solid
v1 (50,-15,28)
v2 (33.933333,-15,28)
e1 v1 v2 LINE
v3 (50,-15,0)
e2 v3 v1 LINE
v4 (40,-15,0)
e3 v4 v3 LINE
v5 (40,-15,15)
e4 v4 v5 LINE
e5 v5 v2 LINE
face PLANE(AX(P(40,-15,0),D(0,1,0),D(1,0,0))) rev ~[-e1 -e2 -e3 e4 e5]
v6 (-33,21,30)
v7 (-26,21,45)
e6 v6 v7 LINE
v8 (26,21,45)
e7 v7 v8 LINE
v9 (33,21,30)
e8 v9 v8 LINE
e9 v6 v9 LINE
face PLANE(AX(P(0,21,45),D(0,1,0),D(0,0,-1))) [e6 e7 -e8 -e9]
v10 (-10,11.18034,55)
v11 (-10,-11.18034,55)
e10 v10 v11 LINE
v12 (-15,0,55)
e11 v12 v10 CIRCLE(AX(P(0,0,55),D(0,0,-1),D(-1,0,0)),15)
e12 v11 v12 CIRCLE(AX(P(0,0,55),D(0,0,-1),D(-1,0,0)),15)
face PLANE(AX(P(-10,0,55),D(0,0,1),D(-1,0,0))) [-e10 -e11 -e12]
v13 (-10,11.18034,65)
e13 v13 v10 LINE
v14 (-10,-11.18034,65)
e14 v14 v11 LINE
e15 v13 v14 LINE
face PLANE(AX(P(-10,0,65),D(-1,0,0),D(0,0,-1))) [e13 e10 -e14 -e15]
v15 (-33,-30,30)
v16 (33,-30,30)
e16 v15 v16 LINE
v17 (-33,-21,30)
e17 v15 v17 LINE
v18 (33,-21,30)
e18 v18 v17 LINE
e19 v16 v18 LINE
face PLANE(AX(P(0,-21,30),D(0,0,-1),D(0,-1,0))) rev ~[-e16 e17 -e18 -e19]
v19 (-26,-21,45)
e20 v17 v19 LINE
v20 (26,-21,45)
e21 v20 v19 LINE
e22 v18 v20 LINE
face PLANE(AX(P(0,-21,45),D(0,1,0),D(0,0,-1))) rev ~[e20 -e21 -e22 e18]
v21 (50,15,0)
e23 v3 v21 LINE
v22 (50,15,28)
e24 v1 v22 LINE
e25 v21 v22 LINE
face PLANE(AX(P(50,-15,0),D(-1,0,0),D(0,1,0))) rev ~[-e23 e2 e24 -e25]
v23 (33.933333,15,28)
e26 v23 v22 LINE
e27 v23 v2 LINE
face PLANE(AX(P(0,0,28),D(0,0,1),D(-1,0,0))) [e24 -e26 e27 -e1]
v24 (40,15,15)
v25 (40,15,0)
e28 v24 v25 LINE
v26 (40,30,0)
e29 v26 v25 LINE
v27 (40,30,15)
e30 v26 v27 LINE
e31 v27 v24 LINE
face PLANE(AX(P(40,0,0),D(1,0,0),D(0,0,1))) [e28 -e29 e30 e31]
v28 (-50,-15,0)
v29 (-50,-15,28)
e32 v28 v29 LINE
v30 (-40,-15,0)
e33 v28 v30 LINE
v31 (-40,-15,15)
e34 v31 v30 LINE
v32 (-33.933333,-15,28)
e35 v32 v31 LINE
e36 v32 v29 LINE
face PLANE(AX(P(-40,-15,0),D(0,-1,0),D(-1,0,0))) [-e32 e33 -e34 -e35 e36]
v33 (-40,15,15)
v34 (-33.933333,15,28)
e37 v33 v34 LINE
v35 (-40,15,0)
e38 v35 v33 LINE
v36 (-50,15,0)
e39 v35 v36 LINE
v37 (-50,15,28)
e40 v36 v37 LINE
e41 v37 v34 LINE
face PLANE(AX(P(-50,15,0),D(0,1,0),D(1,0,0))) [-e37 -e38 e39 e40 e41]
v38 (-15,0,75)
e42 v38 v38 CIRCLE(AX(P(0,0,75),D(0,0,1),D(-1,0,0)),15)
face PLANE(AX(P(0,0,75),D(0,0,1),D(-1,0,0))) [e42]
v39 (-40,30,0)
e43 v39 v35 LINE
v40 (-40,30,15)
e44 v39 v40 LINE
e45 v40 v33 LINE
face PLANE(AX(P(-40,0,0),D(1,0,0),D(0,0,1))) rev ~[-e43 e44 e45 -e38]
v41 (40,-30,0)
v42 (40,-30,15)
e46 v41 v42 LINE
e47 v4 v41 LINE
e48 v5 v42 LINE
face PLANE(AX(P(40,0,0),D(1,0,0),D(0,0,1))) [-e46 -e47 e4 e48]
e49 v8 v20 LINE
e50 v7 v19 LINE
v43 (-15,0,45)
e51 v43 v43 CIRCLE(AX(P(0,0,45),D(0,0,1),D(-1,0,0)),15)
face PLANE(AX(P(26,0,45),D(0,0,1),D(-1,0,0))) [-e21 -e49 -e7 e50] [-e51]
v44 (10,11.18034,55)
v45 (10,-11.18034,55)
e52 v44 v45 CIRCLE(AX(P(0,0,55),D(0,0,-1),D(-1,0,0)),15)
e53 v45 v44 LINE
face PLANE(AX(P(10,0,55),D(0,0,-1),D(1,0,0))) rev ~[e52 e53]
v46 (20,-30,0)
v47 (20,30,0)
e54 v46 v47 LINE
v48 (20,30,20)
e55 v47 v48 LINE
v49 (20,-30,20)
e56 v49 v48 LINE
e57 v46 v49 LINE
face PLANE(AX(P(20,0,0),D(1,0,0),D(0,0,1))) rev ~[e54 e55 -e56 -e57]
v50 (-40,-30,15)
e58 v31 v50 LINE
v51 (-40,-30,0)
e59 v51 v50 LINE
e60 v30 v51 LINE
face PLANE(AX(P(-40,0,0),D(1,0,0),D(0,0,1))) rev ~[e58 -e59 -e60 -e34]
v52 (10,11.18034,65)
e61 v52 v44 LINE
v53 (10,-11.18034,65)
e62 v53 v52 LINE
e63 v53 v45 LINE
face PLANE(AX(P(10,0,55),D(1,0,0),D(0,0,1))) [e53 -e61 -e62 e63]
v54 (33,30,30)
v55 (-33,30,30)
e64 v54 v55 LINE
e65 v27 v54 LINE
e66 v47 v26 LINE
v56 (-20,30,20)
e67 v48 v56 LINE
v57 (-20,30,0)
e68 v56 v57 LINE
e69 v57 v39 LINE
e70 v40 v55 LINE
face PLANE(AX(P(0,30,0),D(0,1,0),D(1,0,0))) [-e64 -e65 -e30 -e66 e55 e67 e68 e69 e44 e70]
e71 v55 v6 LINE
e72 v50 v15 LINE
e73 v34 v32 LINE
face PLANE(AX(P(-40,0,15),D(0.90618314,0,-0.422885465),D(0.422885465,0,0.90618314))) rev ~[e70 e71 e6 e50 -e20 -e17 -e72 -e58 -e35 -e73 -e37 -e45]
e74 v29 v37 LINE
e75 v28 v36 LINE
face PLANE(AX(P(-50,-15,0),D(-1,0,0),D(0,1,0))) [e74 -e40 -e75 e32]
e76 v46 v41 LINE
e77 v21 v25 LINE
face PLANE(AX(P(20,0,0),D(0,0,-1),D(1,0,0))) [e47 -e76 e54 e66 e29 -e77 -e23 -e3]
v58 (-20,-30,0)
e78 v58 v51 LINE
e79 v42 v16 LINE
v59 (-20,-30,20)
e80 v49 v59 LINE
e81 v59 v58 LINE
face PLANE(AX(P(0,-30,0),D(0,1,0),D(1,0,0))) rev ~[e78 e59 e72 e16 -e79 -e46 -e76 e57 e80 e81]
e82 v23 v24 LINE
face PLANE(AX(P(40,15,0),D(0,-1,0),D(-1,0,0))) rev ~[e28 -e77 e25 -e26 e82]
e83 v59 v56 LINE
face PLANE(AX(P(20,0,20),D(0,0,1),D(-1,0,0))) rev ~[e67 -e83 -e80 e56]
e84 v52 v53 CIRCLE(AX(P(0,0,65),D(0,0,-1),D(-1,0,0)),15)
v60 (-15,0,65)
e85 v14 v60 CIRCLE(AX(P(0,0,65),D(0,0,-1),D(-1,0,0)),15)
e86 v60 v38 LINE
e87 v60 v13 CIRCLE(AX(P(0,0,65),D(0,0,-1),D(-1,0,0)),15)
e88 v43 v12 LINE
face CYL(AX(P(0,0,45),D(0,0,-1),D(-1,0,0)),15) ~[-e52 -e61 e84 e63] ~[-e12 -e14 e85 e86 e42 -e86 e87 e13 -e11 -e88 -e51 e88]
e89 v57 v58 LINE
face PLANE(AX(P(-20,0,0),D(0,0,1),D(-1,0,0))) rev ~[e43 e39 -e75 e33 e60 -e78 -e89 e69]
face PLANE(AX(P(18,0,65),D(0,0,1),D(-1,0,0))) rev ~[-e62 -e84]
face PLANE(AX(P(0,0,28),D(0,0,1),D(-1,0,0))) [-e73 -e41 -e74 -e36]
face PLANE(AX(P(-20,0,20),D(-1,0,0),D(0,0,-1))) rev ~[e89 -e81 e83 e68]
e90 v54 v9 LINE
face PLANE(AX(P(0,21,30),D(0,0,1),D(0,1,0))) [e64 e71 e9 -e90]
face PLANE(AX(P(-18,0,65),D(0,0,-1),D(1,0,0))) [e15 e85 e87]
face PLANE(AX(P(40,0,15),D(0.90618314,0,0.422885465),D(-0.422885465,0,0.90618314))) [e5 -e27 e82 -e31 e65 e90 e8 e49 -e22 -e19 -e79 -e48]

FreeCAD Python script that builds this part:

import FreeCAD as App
import Part
import Sketcher

V = App.Vector

doc = App.newDocument("Part")
body = doc.addObject("PartDesign::Body", "Body")

sketch1 = body.newObject("Sketcher::SketchObject", "Sketch")
sketch1.AttachmentSupport = (doc.getObject("XZ_Plane"), [""])
sketch1.MapMode = "FlatFace"
sketch1.addGeometry([
    Part.LineSegment(V(40, 0, 0), V(20, 0, 0)),
    Part.LineSegment(V(20, 0, 0), V(20, 20, 0)),
    Part.LineSegment(V(20, 20, 0), V(-20, 20, 0)),
    Part.LineSegment(V(-20, 20, 0), V(-20, 0, 0)),
    Part.LineSegment(V(-20, 0, 0), V(-40, 0, 0)),
    Part.LineSegment(V(-40, 0, 0), V(-40, 15, 0)),
    Part.LineSegment(V(-40, 15, 0), V(-26, 45, 0)),
    Part.LineSegment(V(-26, 45, 0), V(26, 45, 0)),
    Part.LineSegment(V(26, 45, 0), V(40, 15, 0)),
    Part.LineSegment(V(40, 15, 0), V(40, 0, 0)),
], False)
sketch1.addConstraint([
    Sketcher.Constraint("Coincident", 0, 2, 1, 1),
    Sketcher.Constraint("Coincident", 1, 2, 2, 1),
    Sketcher.Constraint("Coincident", 2, 2, 3, 1),
    Sketcher.Constraint("Coincident", 3, 2, 4, 1),
    Sketcher.Constraint("Coincident", 4, 2, 5, 1),
    Sketcher.Constraint("Coincident", 5, 2, 6, 1),
    Sketcher.Constraint("Coincident", 6, 2, 7, 1),
    Sketcher.Constraint("Coincident", 7, 2, 8, 1),
    Sketcher.Constraint("Coincident", 8, 2, 9, 1),
    Sketcher.Constraint("Coincident", 9, 2, 0, 1),
    Sketcher.Constraint("Horizontal", 0),
    Sketcher.Constraint("Vertical", 1),
    Sketcher.Constraint("Horizontal", 2),
    Sketcher.Constraint("Vertical", 3),
    Sketcher.Constraint("Horizontal", 4),
    Sketcher.Constraint("Vertical", 5),
    Sketcher.Constraint("Horizontal", 7),
    Sketcher.Constraint("Vertical", 9),
    Sketcher.Constraint("Symmetric", 0, 2, 3, 2, -1, 1),
    Sketcher.Constraint("Symmetric", 5, 2, 8, 2, -2),
    Sketcher.Constraint("PointOnObject", 0, 2, -1),
    Sketcher.Constraint("Equal", 4, 1),
    Sketcher.Constraint("Equal", 6, 8),
    Sketcher.Constraint("DistanceY", 5, 1, 5, 2, 15.0),
    Sketcher.Constraint("DistanceX", 6, 2, -1, 1, 26.0),
    Sketcher.Constraint("DistanceX", 0, 2, 0, 1, 20.0),
    Sketcher.Constraint("DistanceX", 2, 2, 2, 1, 40.0),
    Sketcher.Constraint("DistanceY", -1, 1, 6, 2, 45.0),
])
pad1 = body.newObject("PartDesign::Pad", "Pad")
pad1.Profile = sketch1
pad1.Length = 60
pad1.Midplane = True

sketch2 = body.newObject("Sketcher::SketchObject", "Sketch001")
sketch2.AttachmentSupport = (doc.getObject("YZ_Plane"), [""])
sketch2.MapMode = "FlatFace"
sketch2.addGeometry([
    Part.LineSegment(V(-21, 45, 0), V(-30, 45, 0)),
    Part.LineSegment(V(-30, 45, 0), V(-30, 30, 0)),
    Part.LineSegment(V(-30, 30, 0), V(-21, 30, 0)),
    Part.LineSegment(V(-21, 30, 0), V(-21, 45, 0)),
    Part.LineSegment(V(30, 45, 0), V(21, 45, 0)),
    Part.LineSegment(V(21, 45, 0), V(21, 30, 0)),
    Part.LineSegment(V(21, 30, 0), V(30, 30, 0)),
    Part.LineSegment(V(30, 30, 0), V(30, 45, 0)),
], False)
sketch2.addConstraint([
    Sketcher.Constraint("Coincident", 0, 2, 1, 1),
    Sketcher.Constraint("Coincident", 1, 2, 2, 1),
    Sketcher.Constraint("Coincident", 2, 2, 3, 1),
    Sketcher.Constraint("Coincident", 3, 2, 0, 1),
    Sketcher.Constraint("Coincident", 4, 2, 5, 1),
    Sketcher.Constraint("Coincident", 5, 2, 6, 1),
    Sketcher.Constraint("Coincident", 6, 2, 7, 1),
    Sketcher.Constraint("Coincident", 7, 2, 4, 1),
    Sketcher.Constraint("Horizontal", 0),
    Sketcher.Constraint("Vertical", 1),
    Sketcher.Constraint("Horizontal", 2),
    Sketcher.Constraint("Vertical", 3),
    Sketcher.Constraint("Horizontal", 4),
    Sketcher.Constraint("Vertical", 5),
    Sketcher.Constraint("Horizontal", 6),
    Sketcher.Constraint("Vertical", 7),
    Sketcher.Constraint("Symmetric", 3, 2, 4, 2, -2),
    Sketcher.Constraint("Symmetric", 1, 2, 6, 2, -2),
    Sketcher.Constraint("DistanceX", 0, 2, 0, 1, 9.0),
    Sketcher.Constraint("DistanceY", 1, 2, 1, 1, 15.0),
    Sketcher.Constraint("DistanceX", 0, 2, -1, 1, 30.0),
    Sketcher.Constraint("DistanceY", -1, 1, 0, 2, 45.0),
])
pocket1 = body.newObject("PartDesign::Pocket", "Pocket")
pocket1.Profile = sketch2
pocket1.Length = 120
pocket1.Midplane = True

sketch3 = body.newObject("Sketcher::SketchObject", "Sketch002")
sketch3.AttachmentSupport = (doc.getObject("XY_Plane"), [""])
sketch3.MapMode = "FlatFace"
sketch3.addGeometry([
    Part.LineSegment(V(-50, -15, 0), V(-28, -15, 0)),
    Part.LineSegment(V(-28, -15, 0), V(-28, 15, 0)),
    Part.LineSegment(V(-28, 15, 0), V(-50, 15, 0)),
    Part.LineSegment(V(-50, 15, 0), V(-50, -15, 0)),
    Part.LineSegment(V(28, -15, 0), V(50, -15, 0)),
    Part.LineSegment(V(50, -15, 0), V(50, 15, 0)),
    Part.LineSegment(V(50, 15, 0), V(28, 15, 0)),
    Part.LineSegment(V(28, 15, 0), V(28, -15, 0)),
], False)
sketch3.addConstraint([
    Sketcher.Constraint("Coincident", 0, 2, 1, 1),
    Sketcher.Constraint("Coincident", 1, 2, 2, 1),
    Sketcher.Constraint("Coincident", 2, 2, 3, 1),
    Sketcher.Constraint("Coincident", 3, 2, 0, 1),
    Sketcher.Constraint("Coincident", 4, 2, 5, 1),
    Sketcher.Constraint("Coincident", 5, 2, 6, 1),
    Sketcher.Constraint("Coincident", 6, 2, 7, 1),
    Sketcher.Constraint("Coincident", 7, 2, 4, 1),
    Sketcher.Constraint("Horizontal", 0),
    Sketcher.Constraint("Vertical", 1),
    Sketcher.Constraint("Horizontal", 2),
    Sketcher.Constraint("Vertical", 3),
    Sketcher.Constraint("Horizontal", 4),
    Sketcher.Constraint("Vertical", 5),
    Sketcher.Constraint("Horizontal", 6),
    Sketcher.Constraint("Vertical", 7),
    Sketcher.Constraint("Symmetric", 2, 2, 4, 2, -1, 1),
    Sketcher.Constraint("Symmetric", 0, 2, 6, 2, -1, 1),
    Sketcher.Constraint("Horizontal", 3, 2, 4, 2),
    Sketcher.Constraint("DistanceY", 1, 1, 1, 2, 30.0),
    Sketcher.Constraint("DistanceX", 0, 1, 0, 2, 22.0),
    Sketcher.Constraint("DistanceX", 0, 2, -1, 1, 28.0),
])
pad2 = body.newObject("PartDesign::Pad", "Pad001")
pad2.Profile = sketch3
pad2.Length = 28

sketch4 = body.newObject("Sketcher::SketchObject", "Sketch003")
sketch4.AttachmentSupport = (doc.getObject("XY_Plane"), [""])
sketch4.MapMode = "FlatFace"
sketch4.AttachmentOffset = App.Placement(V(0, 0, 45), App.Rotation())
sketch4.addGeometry(Part.Circle(V(0, 0, 0), V(0, 0, 1), 15), False)
sketch4.addConstraint([
    Sketcher.Constraint("Coincident", 0, 3, -1, 1),
    Sketcher.Constraint("Diameter", 0, 30.0),
])
pad3 = body.newObject("PartDesign::Pad", "Pad002")
pad3.Profile = sketch4
pad3.Length = 30

sketch5 = body.newObject("Sketcher::SketchObject", "Sketch004")
sketch5.AttachmentSupport = (doc.getObject("XZ_Plane"), [""])
sketch5.MapMode = "FlatFace"
sketch5.addGeometry([
    Part.LineSegment(V(18, 55, 0), V(10, 55, 0)),
    Part.LineSegment(V(10, 55, 0), V(10, 65, 0)),
    Part.LineSegment(V(10, 65, 0), V(18, 65, 0)),
    Part.LineSegment(V(18, 65, 0), V(18, 55, 0)),
    Part.LineSegment(V(-10, 55, 0), V(-18, 55, 0)),
    Part.LineSegment(V(-18, 55, 0), V(-18, 65, 0)),
    Part.LineSegment(V(-18, 65, 0), V(-10, 65, 0)),
    Part.LineSegment(V(-10, 65, 0), V(-10, 55, 0)),
], False)
sketch5.addConstraint([
    Sketcher.Constraint("Coincident", 0, 2, 1, 1),
    Sketcher.Constraint("Coincident", 1, 2, 2, 1),
    Sketcher.Constraint("Coincident", 2, 2, 3, 1),
    Sketcher.Constraint("Coincident", 3, 2, 0, 1),
    Sketcher.Constraint("Coincident", 4, 2, 5, 1),
    Sketcher.Constraint("Coincident", 5, 2, 6, 1),
    Sketcher.Constraint("Coincident", 6, 2, 7, 1),
    Sketcher.Constraint("Coincident", 7, 2, 4, 1),
    Sketcher.Constraint("Horizontal", 0),
    Sketcher.Constraint("Vertical", 1),
    Sketcher.Constraint("Horizontal", 2),
    Sketcher.Constraint("Vertical", 3),
    Sketcher.Constraint("Horizontal", 4),
    Sketcher.Constraint("Vertical", 5),
    Sketcher.Constraint("Horizontal", 6),
    Sketcher.Constraint("Vertical", 7),
    Sketcher.Constraint("Symmetric", 3, 2, 4, 2, -2),
    Sketcher.Constraint("Symmetric", 1, 2, 6, 2, -2),
    Sketcher.Constraint("DistanceX", 0, 2, 0, 1, 8.0),
    Sketcher.Constraint("DistanceY", 1, 1, 1, 2, 10.0),
    Sketcher.Constraint("DistanceX", -1, 1, 0, 2, 10.0),
    Sketcher.Constraint("DistanceY", -1, 1, 0, 2, 55.0),
])
pocket2 = body.newObject("PartDesign::Pocket", "Pocket001")
pocket2.Profile = sketch5
pocket2.Length = 60
pocket2.Midplane = True

doc.recompute()
